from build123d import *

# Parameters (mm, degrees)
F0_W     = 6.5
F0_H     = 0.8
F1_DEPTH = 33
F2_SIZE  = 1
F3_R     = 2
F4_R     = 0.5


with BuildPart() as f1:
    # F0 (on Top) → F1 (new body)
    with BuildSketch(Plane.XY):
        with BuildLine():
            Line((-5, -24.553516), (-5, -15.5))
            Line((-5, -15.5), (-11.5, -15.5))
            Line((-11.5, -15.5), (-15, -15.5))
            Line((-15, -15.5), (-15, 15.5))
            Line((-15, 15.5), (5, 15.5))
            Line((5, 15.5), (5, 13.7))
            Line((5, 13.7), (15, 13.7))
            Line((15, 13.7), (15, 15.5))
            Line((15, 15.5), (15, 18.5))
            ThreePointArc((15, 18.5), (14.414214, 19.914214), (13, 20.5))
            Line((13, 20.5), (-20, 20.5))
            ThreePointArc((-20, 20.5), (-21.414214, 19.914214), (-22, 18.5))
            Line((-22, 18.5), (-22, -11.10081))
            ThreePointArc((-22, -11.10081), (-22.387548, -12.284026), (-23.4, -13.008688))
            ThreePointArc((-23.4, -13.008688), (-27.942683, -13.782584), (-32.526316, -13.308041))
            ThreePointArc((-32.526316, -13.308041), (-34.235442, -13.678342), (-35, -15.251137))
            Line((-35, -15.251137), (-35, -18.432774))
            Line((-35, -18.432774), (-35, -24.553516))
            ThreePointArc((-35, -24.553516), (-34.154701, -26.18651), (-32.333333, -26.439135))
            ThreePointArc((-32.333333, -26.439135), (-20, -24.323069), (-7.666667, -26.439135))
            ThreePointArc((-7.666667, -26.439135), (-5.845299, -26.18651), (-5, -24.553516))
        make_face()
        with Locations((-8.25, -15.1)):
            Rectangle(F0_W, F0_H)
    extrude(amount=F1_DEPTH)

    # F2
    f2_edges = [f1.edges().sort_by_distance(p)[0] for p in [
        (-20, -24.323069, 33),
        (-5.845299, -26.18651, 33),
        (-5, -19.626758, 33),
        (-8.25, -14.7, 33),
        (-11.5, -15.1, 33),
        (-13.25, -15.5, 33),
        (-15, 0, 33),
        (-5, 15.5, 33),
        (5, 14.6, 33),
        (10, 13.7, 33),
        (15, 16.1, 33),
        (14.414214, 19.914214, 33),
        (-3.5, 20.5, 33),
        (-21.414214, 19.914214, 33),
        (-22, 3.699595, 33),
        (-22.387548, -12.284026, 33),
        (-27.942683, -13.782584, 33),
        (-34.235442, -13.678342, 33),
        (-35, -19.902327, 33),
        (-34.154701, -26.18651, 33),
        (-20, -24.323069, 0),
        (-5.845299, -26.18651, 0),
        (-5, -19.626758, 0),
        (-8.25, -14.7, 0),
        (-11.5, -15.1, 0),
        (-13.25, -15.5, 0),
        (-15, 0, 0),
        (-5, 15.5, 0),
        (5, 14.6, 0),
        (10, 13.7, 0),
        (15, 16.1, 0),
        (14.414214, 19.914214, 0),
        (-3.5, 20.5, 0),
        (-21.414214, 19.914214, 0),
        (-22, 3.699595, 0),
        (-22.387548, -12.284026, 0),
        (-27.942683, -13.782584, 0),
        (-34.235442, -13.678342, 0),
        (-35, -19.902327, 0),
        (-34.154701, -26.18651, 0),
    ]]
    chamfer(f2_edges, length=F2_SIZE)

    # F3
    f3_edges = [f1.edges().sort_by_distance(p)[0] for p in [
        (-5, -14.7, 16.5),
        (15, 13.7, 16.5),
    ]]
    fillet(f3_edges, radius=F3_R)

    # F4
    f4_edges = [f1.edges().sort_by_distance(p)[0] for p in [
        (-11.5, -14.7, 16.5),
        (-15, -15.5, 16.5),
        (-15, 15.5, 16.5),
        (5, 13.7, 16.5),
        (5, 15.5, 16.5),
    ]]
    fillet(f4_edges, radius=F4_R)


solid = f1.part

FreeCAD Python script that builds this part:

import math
import FreeCAD as App
import Part
import Sketcher
from FreeCAD import Vector


def edges_at(feature, points):
    """Names of the edges that pass closest to the given points."""
    edges = feature.Shape.Edges
    near = lambda p: min(range(len(edges)), key=lambda i: edges[i].distToShape(Part.Vertex(*p))[0])
    return sorted({f"Edge{near(p) + 1}" for p in points})

doc = App.newDocument("Part")
body = doc.addObject("PartDesign::Body", "Body")

# Sketch on XY plane
sketch1 = body.newObject("Sketcher::SketchObject", "Sketch")
sketch1.AttachmentSupport = (doc.getObject("XY_Plane"), [""])
sketch1.MapMode = "FlatFace"
sketch1.addGeometry([
    Part.LineSegment(Vector(-5, -24.553516, 0), Vector(-5, -14.7, 0)),  # 0
    Part.LineSegment(Vector(-5, -14.7, 0), Vector(-11.5, -14.7, 0)),  # 1
    Part.LineSegment(Vector(-11.5, -14.7, 0), Vector(-11.5, -15.5, 0)),  # 2
    Part.LineSegment(Vector(-11.5, -15.5, 0), Vector(-15, -15.5, 0)),  # 3
    Part.LineSegment(Vector(-15, -15.5, 0), Vector(-15, 15.5, 0)),  # 4
    Part.LineSegment(Vector(-15, 15.5, 0), Vector(5, 15.5, 0)),  # 5
    Part.LineSegment(Vector(5, 15.5, 0), Vector(5, 13.7, 0)),  # 6
    Part.LineSegment(Vector(5, 13.7, 0), Vector(15, 13.7, 0)),  # 7
    Part.LineSegment(Vector(15, 13.7, 0), Vector(15, 18.5, 0)),  # 8
    Part.ArcOfCircle(Part.Circle(Vector(13.000001, 18.500001, 0), Vector(0, 0, 1), 1.999999), math.radians(-0.000043), math.radians(90.000043)),  # 9
    Part.LineSegment(Vector(13, 20.5, 0), Vector(-20, 20.5, 0)),  # 10
    Part.ArcOfCircle(Part.Circle(Vector(-20.000001, 18.500001, 0), Vector(0, 0, 1), 1.999999), math.radians(89.999957), math.radians(180.000043)),  # 11
    Part.LineSegment(Vector(-22, 18.5, 0), Vector(-22, -11.10081, 0)),  # 12
    Part.ArcOfCircle(Part.Circle(Vector(-23.999997, -11.100812, 0), Vector(0, 0, 1), 1.999997), math.radians(-72.542452), math.radians(0.000043)),  # 13
    Part.ArcOfCircle(Part.Circle(Vector(-28.500002, 3.208283, 0), Vector(0, 0, 1), 17.000005), math.radians(-103.700224), math.radians(-72.542396)),  # 14
    Part.ArcOfCircle(Part.Circle(Vector(-33.000001, -15.251136, 0), Vector(0, 0, 1), 1.999999), math.radians(76.299741), math.radians(180.000022)),  # 15
    Part.LineSegment(Vector(-35, -15.251137, 0), Vector(-35, -24.553516, 0)),  # 16
    Part.ArcOfCircle(Part.Circle(Vector(-33, -24.553517, 0), Vector(0, 0, 1), 2), math.radians(179.999964), math.radians(289.471237)),  # 17
    Part.ArcOfCircle(Part.Circle(Vector(-20, -61.323058, 0), Vector(0, 0, 1), 36.999989), math.radians(70.528774), math.radians(109.471226)),  # 18
    Part.ArcOfCircle(Part.Circle(Vector(-7, -24.553517, 0), Vector(0, 0, 1), 2), math.radians(-109.471237), math.radians(0.000036)),  # 19
], False)
sketch1.addConstraint([
    Sketcher.Constraint("Coincident", 0, 2, 1, 1),
    Sketcher.Constraint("Coincident", 1, 2, 2, 1),
    Sketcher.Constraint("Coincident", 2, 2, 3, 1),
    Sketcher.Constraint("Coincident", 3, 2, 4, 1),
    Sketcher.Constraint("Coincident", 4, 2, 5, 1),
    Sketcher.Constraint("Coincident", 5, 2, 6, 1),
    Sketcher.Constraint("Coincident", 6, 2, 7, 1),
    Sketcher.Constraint("Coincident", 7, 2, 8, 1),
    Sketcher.Constraint("Coincident", 8, 2, 9, 1),
    Sketcher.Constraint("Coincident", 9, 2, 10, 1),
    Sketcher.Constraint("Coincident", 10, 2, 11, 1),
    Sketcher.Constraint("Coincident", 11, 2, 12, 1),
    Sketcher.Constraint("Coincident", 12, 2, 13, 2),
    Sketcher.Constraint("Coincident", 13, 1, 14, 2),
    Sketcher.Constraint("Coincident", 14, 1, 15, 1),
    Sketcher.Constraint("Coincident", 15, 2, 16, 1),
    Sketcher.Constraint("Coincident", 16, 2, 17, 1),
    Sketcher.Constraint("Coincident", 17, 2, 18, 2),
    Sketcher.Constraint("Coincident", 18, 1, 19, 1),
    Sketcher.Constraint("Coincident", 19, 2, 0, 1),
    Sketcher.Constraint("Vertical", 0),
    Sketcher.Constraint("Horizontal", 1),
    Sketcher.Constraint("Vertical", 2),
    Sketcher.Constraint("Horizontal", 3),
    Sketcher.Constraint("Vertical", 4),
    Sketcher.Constraint("Horizontal", 5),
    Sketcher.Constraint("Vertical", 6),
    Sketcher.Constraint("Horizontal", 7),
    Sketcher.Constraint("Vertical", 8),
    Sketcher.Constraint("Horizontal", 10),
    Sketcher.Constraint("Vertical", 12),
    Sketcher.Constraint("Vertical", 16),
    Sketcher.Constraint("Radius", 9, 1.999999),
    Sketcher.Constraint("Radius", 11, 1.999999),
    Sketcher.Constraint("Radius", 15, 1.999999),
    Sketcher.Constraint("Radius", 17, 2.0),
    Sketcher.Constraint("Radius", 19, 2.0),
    Sketcher.Constraint("DistanceX", 5, 1, 5, 2, 20.0),
    Sketcher.Constraint("DistanceX", 7, 1, 7, 2, 10.0),
    Sketcher.Constraint("DistanceX", 10, 2, 10, 1, 33.0),
    Sketcher.Constraint("DistanceY", 4, 1, 4, 2, 31.0),
    Sketcher.Constraint("DistanceX", 1, 2, 1, 1, 6.5),
    Sketcher.Constraint("DistanceX", 3, 2, 3, 1, 3.5),
    Sketcher.Constraint("DistanceY", 2, 2, 2, 1, 0.8),
    Sketcher.Constraint("DistanceY", 6, 2, 6, 1, 1.8),
    Sketcher.Constraint("DistanceY", 8, 1, 8, 2, 4.8),
    Sketcher.Constraint("DistanceX", -1, 1, 9, 3, 13.000001),
    Sketcher.Constraint("DistanceX", 11, 3, -1, 1, 20.000001),
    Sketcher.Constraint("DistanceX", 15, 3, -1, 1, 33.000001),
    Sketcher.Constraint("DistanceX", 18, 3, -1, 1, 20.0),
    Sketcher.Constraint("DistanceX", -1, 1, 9, 2, 13.0),
    Sketcher.Constraint("DistanceX", 13, 3, 9, 3, 36.999999),
    Sketcher.Constraint("DistanceY", 4, 2, 11, 3, 3.000001),
    Sketcher.Constraint("DistanceY", 11, 2, 10, 2, 2.0),
    Sketcher.Constraint("DistanceY", -1, 1, 9, 3, 18.500001),
    Sketcher.Constraint("DistanceX", 14, 3, -1, 1, 28.500002),
    Sketcher.Constraint("DistanceX", 13, 1, -1, 1, 23.4),
    Sketcher.Constraint("Radius", 18, 36.999989),
    Sketcher.Constraint("Radius", 14, 17.000005),
    Sketcher.Constraint("DistanceY", 17, 2, 15, 3, 11.187999),
    Sketcher.Constraint("DistanceY", 17, 2, 15, 2, 11.187998),
    Sketcher.Constraint("DistanceY", 12, 2, 12, 1, 29.60081),
    Sketcher.Constraint("DistanceY", 16, 2, 16, 1, 9.302379),
    Sketcher.Constraint("DistanceY", 17, 3, 14, 3, 27.7618),
    Sketcher.Constraint("DistanceY", 0, 1, 0, 2, 9.853516),
    Sketcher.Constraint("DistanceY", 13, 3, -1, 1, 11.100812),
    Sketcher.Constraint("DistanceY", 14, 1, -1, 1, 13.308041),
    Sketcher.Constraint("DistanceY", 18, 1, 19, 2, 1.885619),
])
pad1 = body.newObject("PartDesign::Pad", "Pad")
pad1.Profile = sketch1
pad1.Length = 33
doc.recompute()

chamfer = body.newObject("PartDesign::Chamfer", "Chamfer")
chamfer.Base = (pad1, edges_at(pad1, [
    (-20, -24.323, 33),
    (-5.845, -26.187, 33),
    (-5, -19.627, 33),
    (-8.25, -14.7, 33),
    (-11.5, -15.1, 33),
    (-13.25, -15.5, 33),
    (-15, 0, 33),
    (-5, 15.5, 33),
    (5, 14.6, 33),
    (10, 13.7, 33),
    (15, 16.1, 33),
    (14.414, 19.914, 33),
    (-3.5, 20.5, 33),
    (-21.414, 19.914, 33),
    (-22, 3.7, 33),
    (-22.388, -12.284, 33),
    (-27.943, -13.783, 33),
    (-34.235, -13.678, 33),
    (-35, -19.902, 33),
    (-34.155, -26.187, 33),
    (-20, -24.323, 0),
    (-5.845, -26.187, 0),
    (-5, -19.627, 0),
    (-8.25, -14.7, 0),
    (-11.5, -15.1, 0),
    (-13.25, -15.5, 0),
    (-15, 0, 0),
    (-5, 15.5, 0),
    (5, 14.6, 0),
    (10, 13.7, 0),
    (15, 16.1, 0),
    (14.414, 19.914, 0),
    (-3.5, 20.5, 0),
    (-21.414, 19.914, 0),
    (-22, 3.7, 0),
    (-22.388, -12.284, 0),
    (-27.943, -13.783, 0),
    (-34.235, -13.678, 0),
    (-35, -19.902, 0),
    (-34.155, -26.187, 0),
]))
chamfer.Size = 1
doc.recompute()

fillet = body.newObject("PartDesign::Fillet", "Fillet")
fillet.Base = (chamfer, edges_at(chamfer, [(-5, -14.7, 16.5), (15, 13.7, 16.5)]))
fillet.Radius = 2
doc.recompute()

fillet2 = body.newObject("PartDesign::Fillet", "Fillet001")
fillet2.Base = (fillet, edges_at(fillet, [
    (-11.5, -14.7, 16.5),
    (-15, -15.5, 16.5),
    (-15, 15.5, 16.5),
    (5, 13.7, 16.5),
    (5, 15.5, 16.5),
]))
fillet2.Radius = 0.5

doc.recompute()
